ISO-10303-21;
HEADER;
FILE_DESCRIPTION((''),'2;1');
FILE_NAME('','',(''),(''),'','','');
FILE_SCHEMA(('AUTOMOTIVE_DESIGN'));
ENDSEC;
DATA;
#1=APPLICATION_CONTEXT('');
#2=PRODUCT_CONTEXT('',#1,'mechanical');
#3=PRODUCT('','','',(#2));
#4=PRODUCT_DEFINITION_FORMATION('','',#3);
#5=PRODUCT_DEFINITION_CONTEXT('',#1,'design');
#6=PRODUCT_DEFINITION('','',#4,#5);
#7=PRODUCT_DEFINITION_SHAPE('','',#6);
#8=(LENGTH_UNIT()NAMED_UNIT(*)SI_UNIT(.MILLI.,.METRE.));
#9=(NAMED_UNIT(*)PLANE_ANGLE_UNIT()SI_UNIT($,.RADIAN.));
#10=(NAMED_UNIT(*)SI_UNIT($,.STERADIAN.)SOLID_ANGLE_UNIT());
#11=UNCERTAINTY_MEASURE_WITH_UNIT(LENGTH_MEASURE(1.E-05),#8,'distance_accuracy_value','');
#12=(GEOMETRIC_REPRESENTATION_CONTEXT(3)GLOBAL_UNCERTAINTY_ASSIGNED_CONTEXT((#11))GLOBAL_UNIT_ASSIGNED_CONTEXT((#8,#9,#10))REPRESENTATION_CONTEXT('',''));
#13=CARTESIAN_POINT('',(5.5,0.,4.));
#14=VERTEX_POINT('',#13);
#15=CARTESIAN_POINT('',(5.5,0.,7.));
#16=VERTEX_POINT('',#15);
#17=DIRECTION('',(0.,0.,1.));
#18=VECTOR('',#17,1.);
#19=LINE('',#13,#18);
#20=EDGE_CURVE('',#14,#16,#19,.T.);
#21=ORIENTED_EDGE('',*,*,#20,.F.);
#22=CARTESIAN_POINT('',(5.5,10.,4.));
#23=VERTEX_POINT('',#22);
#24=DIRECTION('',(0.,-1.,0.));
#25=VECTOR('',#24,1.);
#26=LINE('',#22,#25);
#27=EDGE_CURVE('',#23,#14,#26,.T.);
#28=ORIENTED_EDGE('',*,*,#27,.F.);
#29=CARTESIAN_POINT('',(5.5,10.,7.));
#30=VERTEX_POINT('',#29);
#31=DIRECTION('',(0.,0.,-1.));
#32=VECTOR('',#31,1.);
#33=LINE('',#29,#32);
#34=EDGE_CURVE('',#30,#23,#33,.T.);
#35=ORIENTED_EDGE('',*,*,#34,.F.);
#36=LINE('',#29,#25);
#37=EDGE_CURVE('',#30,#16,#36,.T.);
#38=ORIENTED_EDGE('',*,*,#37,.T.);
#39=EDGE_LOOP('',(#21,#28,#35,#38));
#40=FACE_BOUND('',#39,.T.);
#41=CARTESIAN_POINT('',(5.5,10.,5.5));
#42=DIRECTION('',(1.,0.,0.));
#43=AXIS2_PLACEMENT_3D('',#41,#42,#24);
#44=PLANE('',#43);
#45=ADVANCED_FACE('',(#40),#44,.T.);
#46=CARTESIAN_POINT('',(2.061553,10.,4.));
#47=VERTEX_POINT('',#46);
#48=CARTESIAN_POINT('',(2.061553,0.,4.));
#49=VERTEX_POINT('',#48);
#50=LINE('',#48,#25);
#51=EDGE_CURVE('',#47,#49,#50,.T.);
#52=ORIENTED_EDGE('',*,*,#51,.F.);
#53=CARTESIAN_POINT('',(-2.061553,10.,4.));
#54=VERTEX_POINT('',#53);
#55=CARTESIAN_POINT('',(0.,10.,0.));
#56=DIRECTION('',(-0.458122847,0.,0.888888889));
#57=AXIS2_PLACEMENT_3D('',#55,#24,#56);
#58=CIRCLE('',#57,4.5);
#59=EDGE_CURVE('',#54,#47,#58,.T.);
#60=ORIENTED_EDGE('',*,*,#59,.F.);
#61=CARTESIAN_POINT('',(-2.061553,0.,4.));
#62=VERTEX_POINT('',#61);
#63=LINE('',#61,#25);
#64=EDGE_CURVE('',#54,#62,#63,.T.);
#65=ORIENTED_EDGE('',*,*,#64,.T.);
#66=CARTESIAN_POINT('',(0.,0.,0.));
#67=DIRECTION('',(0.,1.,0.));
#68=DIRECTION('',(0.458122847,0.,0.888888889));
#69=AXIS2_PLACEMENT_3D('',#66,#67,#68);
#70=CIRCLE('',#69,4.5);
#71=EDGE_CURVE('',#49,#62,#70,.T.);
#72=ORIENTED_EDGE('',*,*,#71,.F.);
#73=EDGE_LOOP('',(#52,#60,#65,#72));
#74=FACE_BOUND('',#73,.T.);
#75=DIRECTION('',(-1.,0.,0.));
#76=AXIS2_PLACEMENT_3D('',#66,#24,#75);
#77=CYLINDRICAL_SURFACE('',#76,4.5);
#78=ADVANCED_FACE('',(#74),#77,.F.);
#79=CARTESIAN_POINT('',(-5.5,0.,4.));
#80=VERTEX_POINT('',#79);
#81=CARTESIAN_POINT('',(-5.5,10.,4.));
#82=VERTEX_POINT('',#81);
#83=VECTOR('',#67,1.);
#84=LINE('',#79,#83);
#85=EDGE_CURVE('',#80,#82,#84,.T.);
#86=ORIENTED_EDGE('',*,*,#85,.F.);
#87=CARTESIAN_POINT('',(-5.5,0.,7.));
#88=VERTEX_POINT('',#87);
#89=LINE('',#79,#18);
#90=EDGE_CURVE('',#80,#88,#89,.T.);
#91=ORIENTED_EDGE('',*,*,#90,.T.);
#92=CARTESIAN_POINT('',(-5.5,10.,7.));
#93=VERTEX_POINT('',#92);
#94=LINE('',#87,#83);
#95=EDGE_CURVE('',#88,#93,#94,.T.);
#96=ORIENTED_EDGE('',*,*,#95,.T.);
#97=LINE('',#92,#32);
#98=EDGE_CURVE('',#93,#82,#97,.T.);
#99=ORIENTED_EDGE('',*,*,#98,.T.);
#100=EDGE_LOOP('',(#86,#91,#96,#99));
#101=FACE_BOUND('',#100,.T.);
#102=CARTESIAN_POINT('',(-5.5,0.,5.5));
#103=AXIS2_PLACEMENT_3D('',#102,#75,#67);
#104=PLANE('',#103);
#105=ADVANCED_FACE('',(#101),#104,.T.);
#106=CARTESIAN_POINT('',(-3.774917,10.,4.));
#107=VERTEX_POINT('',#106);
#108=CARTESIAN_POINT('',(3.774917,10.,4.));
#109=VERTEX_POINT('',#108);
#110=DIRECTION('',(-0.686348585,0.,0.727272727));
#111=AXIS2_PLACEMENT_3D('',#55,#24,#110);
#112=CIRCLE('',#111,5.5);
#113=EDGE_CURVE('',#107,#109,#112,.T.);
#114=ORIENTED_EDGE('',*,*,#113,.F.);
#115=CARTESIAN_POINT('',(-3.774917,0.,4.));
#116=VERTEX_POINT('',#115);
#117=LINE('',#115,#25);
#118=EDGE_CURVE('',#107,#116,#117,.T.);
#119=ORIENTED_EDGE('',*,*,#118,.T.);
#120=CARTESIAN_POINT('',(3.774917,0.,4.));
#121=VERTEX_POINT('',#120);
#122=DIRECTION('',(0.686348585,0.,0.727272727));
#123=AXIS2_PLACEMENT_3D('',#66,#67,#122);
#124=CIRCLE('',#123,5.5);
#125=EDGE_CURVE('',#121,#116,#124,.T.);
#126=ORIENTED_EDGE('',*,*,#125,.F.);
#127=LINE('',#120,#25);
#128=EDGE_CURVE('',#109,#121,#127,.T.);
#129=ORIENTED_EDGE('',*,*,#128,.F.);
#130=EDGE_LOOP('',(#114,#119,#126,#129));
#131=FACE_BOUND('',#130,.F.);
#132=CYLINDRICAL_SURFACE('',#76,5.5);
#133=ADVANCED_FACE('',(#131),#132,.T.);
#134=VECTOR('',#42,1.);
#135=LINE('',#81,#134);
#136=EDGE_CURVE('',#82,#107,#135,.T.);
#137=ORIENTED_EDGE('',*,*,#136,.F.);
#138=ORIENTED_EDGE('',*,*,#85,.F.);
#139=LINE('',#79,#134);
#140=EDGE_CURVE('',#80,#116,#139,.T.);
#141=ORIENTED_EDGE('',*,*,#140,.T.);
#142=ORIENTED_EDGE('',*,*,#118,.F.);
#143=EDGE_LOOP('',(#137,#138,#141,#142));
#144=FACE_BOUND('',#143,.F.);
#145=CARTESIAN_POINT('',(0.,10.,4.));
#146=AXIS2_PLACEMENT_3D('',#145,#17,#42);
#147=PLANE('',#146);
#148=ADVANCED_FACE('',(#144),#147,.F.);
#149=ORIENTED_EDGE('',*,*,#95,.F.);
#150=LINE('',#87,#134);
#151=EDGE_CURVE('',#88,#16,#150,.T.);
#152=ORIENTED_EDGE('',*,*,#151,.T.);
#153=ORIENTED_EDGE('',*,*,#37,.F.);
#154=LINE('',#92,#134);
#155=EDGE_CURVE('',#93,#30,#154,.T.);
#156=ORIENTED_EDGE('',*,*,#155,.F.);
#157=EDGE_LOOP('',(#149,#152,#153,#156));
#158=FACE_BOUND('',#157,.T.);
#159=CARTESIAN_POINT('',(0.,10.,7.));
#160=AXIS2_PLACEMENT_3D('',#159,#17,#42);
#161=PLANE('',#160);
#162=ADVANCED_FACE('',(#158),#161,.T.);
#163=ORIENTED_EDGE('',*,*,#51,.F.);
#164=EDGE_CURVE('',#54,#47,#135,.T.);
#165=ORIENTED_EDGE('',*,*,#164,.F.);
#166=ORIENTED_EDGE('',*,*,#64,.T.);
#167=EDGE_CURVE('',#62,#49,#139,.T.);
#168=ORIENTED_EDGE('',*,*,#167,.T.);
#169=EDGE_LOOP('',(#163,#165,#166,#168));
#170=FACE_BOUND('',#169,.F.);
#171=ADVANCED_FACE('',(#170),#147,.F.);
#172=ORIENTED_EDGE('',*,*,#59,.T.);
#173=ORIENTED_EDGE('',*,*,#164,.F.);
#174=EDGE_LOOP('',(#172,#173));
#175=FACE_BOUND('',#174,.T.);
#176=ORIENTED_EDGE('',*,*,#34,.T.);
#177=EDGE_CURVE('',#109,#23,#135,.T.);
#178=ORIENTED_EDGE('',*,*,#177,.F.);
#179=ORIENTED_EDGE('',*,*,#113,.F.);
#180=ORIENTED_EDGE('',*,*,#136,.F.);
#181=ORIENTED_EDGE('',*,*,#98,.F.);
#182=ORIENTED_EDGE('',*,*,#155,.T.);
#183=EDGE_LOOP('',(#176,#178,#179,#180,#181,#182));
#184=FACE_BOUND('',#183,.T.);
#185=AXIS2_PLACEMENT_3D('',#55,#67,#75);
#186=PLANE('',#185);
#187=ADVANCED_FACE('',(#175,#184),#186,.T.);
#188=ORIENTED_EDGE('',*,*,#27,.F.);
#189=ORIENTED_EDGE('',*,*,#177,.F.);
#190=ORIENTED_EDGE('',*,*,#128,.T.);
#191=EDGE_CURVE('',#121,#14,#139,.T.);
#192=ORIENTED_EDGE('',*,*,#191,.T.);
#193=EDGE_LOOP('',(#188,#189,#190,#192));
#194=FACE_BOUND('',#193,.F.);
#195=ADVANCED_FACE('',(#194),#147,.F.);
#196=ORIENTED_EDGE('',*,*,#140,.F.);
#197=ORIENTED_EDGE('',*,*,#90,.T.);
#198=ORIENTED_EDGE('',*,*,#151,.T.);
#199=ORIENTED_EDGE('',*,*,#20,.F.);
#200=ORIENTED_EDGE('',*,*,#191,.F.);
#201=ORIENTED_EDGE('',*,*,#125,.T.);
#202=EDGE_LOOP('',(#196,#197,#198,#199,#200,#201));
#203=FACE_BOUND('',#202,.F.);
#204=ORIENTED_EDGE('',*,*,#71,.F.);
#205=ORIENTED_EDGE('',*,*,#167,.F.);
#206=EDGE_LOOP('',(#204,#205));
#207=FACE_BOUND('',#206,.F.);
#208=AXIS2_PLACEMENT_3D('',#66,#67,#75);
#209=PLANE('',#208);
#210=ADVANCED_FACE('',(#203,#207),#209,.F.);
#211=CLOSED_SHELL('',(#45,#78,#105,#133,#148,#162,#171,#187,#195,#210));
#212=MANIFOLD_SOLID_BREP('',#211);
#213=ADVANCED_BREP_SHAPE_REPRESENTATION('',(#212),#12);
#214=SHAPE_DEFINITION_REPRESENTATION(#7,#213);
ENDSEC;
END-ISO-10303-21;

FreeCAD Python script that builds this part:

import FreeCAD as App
import Part
import Sketcher
from FreeCAD import Vector
Q = App.Units.Quantity


def add_polygon(sketch, points):
    """Adds a closed chain of lines whose ends are joined by coincident constraints."""
    first, n = sketch.GeometryCount, len(points)
    for a, b in zip(points, points[1:] + points[:1]):
        sketch.addGeometry(Part.LineSegment(App.Vector(*a, 0), App.Vector(*b, 0)), False)
    for i in range(n):
        sketch.addConstraint(Sketcher.Constraint("Coincident", first + i, 2, first + (i + 1) % n, 1))

doc = App.newDocument("Part")
body = doc.addObject("PartDesign::Body", "Body")

sketch1 = body.newObject("Sketcher::SketchObject", "Sketch")
sketch1.AttachmentSupport = (doc.getObject("XZ_Plane"), [""])
sketch1.MapMode = "FlatFace"
sketch1.addGeometry([
    Part.Circle(Vector(0, 0, 0), Vector(0, 0, 1), 5.5),
    Part.Circle(Vector(0, 0, 0), Vector(0, 0, 1), 4.5),
], False)
sketch1.addConstraint([
    Sketcher.Constraint("Coincident", 0, 3, -1, 1),
    Sketcher.Constraint("Coincident", 1, 3, -1, 1),
    Sketcher.Constraint("Diameter", 0, Q("11 mm")),
    Sketcher.Constraint("Diameter", 1, Q("9 mm")),
])
pad1 = body.newObject("PartDesign::Pad", "Pad")
pad1.Profile = sketch1
pad1.Length = 10
pad1.Reversed = True

sketch2 = body.newObject("Sketcher::SketchObject", "Sketch001")
sketch2.AttachmentSupport = (doc.getObject("XY_Plane"), [""])
sketch2.MapMode = "FlatFace"
sketch2.AttachmentOffset = App.Placement(Vector(0, 0, 5.5), App.Rotation())
add_polygon(sketch2, [(-6, 10), (-6, 0), (6, 0), (6, 10)])
sketch2.addConstraint([
    Sketcher.Constraint("Vertical", 0),
    Sketcher.Constraint("Horizontal", 1),
    Sketcher.Constraint("Vertical", 2),
    Sketcher.Constraint("Horizontal", 3),
    Sketcher.Constraint("Symmetric", 0, 2, 1, 2, -1, 1),
    Sketcher.Constraint("DistanceX", 1, 1, 1, 2, Q("11 mm")),
    Sketcher.Constraint("DistanceY", 0, 2, 0, 1, Q("10 mm")),
])
pad2 = body.newObject("PartDesign::Pad", "Pad001")
pad2.Profile = sketch2
pad2.Length = 3
pad2.Midplane = True

doc.recompute()
